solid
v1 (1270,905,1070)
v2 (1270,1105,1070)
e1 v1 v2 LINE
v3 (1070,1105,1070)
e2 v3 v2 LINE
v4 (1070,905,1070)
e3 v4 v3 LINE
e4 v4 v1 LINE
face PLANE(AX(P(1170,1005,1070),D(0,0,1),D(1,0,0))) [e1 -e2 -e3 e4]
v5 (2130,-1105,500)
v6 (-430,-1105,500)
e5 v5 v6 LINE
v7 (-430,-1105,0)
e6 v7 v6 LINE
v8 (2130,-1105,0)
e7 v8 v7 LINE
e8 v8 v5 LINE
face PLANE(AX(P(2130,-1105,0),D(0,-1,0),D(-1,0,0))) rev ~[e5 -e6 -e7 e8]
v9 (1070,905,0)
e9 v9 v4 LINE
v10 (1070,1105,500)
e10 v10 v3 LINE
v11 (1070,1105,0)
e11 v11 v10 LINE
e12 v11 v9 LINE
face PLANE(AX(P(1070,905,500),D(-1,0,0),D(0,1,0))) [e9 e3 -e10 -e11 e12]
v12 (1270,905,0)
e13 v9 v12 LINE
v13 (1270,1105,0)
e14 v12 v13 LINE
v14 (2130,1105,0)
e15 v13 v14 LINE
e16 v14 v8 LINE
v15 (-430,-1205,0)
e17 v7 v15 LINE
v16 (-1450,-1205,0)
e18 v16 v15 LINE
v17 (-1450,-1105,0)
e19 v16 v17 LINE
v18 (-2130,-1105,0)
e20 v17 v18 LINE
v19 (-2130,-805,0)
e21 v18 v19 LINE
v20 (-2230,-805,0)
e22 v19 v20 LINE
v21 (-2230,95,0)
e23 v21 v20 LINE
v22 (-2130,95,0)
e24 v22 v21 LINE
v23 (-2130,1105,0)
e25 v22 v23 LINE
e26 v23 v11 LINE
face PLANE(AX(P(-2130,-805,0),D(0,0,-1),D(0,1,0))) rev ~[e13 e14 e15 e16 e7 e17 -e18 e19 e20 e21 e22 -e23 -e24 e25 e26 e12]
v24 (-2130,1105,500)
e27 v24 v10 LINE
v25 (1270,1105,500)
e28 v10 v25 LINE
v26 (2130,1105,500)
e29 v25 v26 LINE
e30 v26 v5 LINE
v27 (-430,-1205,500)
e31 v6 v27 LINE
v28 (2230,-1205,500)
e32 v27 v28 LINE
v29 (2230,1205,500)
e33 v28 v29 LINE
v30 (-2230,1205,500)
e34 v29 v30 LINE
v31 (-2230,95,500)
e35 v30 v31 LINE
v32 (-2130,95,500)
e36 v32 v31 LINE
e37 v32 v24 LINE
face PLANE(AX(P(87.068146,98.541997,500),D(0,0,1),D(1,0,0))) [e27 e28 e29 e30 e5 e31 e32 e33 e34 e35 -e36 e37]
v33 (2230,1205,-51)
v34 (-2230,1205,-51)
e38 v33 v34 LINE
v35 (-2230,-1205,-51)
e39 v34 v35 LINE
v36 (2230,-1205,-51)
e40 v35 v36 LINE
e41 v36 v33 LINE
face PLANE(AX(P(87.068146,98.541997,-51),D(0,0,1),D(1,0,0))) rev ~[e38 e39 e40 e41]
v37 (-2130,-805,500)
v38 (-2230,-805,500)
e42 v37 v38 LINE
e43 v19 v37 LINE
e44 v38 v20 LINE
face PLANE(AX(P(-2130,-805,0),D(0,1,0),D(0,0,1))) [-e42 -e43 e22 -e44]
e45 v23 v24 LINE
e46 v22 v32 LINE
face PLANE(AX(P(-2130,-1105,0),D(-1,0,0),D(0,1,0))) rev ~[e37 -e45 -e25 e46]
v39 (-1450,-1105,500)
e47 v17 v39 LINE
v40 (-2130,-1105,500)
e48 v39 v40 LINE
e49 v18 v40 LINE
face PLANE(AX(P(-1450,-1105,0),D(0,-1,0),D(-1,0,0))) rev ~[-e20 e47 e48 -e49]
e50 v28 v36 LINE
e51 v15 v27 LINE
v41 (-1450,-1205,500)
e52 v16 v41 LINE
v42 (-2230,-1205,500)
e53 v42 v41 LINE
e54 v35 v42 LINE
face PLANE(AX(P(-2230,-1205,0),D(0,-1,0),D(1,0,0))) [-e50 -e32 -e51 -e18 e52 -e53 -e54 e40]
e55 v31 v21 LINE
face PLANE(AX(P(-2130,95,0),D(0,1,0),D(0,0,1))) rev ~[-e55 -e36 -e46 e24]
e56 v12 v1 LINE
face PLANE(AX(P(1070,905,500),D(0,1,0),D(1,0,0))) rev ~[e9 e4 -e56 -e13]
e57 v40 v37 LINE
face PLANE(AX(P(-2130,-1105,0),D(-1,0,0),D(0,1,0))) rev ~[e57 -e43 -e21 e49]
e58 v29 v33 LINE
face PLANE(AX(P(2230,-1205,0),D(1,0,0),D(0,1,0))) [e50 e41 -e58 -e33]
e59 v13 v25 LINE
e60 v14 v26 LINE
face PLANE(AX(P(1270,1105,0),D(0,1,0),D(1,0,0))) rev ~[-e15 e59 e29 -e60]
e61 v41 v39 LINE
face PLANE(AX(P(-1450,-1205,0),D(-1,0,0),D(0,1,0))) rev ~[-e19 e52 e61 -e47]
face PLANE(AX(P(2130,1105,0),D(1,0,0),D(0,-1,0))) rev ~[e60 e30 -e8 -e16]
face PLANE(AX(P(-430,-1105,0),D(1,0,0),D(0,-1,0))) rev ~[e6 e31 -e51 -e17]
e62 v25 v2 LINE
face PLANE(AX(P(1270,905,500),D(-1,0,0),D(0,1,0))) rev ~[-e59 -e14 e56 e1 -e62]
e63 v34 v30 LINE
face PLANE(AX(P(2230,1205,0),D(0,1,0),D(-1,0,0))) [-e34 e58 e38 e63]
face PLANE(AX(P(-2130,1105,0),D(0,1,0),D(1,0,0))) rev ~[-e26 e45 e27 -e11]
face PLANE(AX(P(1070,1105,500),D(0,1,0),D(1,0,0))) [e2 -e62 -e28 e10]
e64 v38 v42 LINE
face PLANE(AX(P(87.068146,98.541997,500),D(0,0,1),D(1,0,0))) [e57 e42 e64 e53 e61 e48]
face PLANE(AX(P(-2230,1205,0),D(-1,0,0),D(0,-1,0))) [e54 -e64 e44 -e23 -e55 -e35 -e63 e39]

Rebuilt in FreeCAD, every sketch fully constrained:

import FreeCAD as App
import Part
import Sketcher
Q = App.Units.Quantity


def add_polygon(sketch, points):
    """Adds a closed chain of lines whose ends are joined by coincident constraints."""
    first, n = sketch.GeometryCount, len(points)
    for a, b in zip(points, points[1:] + points[:1]):
        sketch.addGeometry(Part.LineSegment(App.Vector(*a, 0), App.Vector(*b, 0)), False)
    for i in range(n):
        sketch.addConstraint(Sketcher.Constraint("Coincident", first + i, 2, first + (i + 1) % n, 1))

doc = App.newDocument("Part")
body = doc.addObject("PartDesign::Body", "Body")

sketch1 = body.newObject("Sketcher::SketchObject", "Sketch")
sketch1.AttachmentSupport = (doc.getObject("XY_Plane"), [""])
sketch1.MapMode = "FlatFace"
add_polygon(sketch1, [(2230, 1205), (-2230, 1205), (-2230, -1205), (-1450, -1205), (-1450, -1105), (-2130, -1105), (-2130, 1105), (1070, 1105), (1070, 905), (1270, 905), (1270, 1105), (2130, 1105), (2130, -1105), (-430, -1105), (-430, -1205), (2230, -1205)])
sketch1.addConstraint(Sketcher.Constraint("Horizontal", 0))
sketch1.addConstraint(Sketcher.Constraint("Vertical", 1))
sketch1.addConstraint(Sketcher.Constraint("Horizontal", 2))
sketch1.addConstraint(Sketcher.Constraint("Vertical", 3))
sketch1.addConstraint(Sketcher.Constraint("Horizontal", 4))
sketch1.addConstraint(Sketcher.Constraint("Vertical", 5))
sketch1.addConstraint(Sketcher.Constraint("Horizontal", 6))
sketch1.addConstraint(Sketcher.Constraint("Vertical", 7))
sketch1.addConstraint(Sketcher.Constraint("Horizontal", 8))
sketch1.addConstraint(Sketcher.Constraint("Vertical", 9))
sketch1.addConstraint(Sketcher.Constraint("Horizontal", 10))
sketch1.addConstraint(Sketcher.Constraint("Vertical", 11))
sketch1.addConstraint(Sketcher.Constraint("Horizontal", 12))
sketch1.addConstraint(Sketcher.Constraint("Vertical", 13))
sketch1.addConstraint(Sketcher.Constraint("Horizontal", 14))
sketch1.addConstraint(Sketcher.Constraint("Vertical", 15))
sketch1.addConstraint(Sketcher.Constraint("Symmetric", 4, 2, 10, 2, -1, 1))
sketch1.addConstraint(Sketcher.Constraint("Symmetric", 0, 2, 14, 2, -1, 1))
sketch1.addConstraint(Sketcher.Constraint("Horizontal", 6, 2, 9, 2))
sketch1.addConstraint(Sketcher.Constraint("Horizontal", 4, 2, 11, 2))
sketch1.addConstraint(Sketcher.Constraint("Horizontal", 2, 2, 13, 2))
sketch1.addConstraint(Sketcher.Constraint("Equal", 8, 7))
sketch1.addConstraint(Sketcher.Constraint("DistanceX", 0, 2, 0, 1, Q("4460 mm")))
sketch1.addConstraint(Sketcher.Constraint("DistanceX", 2, 1, 2, 2, Q("780 mm")))
sketch1.addConstraint(Sketcher.Constraint("DistanceX", 4, 2, 4, 1, Q("680 mm")))
sketch1.addConstraint(Sketcher.Constraint("DistanceX", 6, 1, 6, 2, Q("3200 mm")))
sketch1.addConstraint(Sketcher.Constraint("DistanceX", 8, 1, 8, 2, Q("200 mm")))
sketch1.addConstraint(Sketcher.Constraint("DistanceX", 12, 2, 12, 1, Q("2560 mm")))
sketch1.addConstraint(Sketcher.Constraint("DistanceY", 1, 2, 1, 1, Q("2410 mm")))
sketch1.addConstraint(Sketcher.Constraint("DistanceY", 3, 1, 3, 2, Q("100 mm")))
pad1 = body.newObject("PartDesign::Pad", "Pad")
pad1.Profile = sketch1
pad1.Length = 500

sketch2 = body.newObject("Sketcher::SketchObject", "Sketch001")
sketch2.AttachmentSupport = (doc.getObject("XY_Plane"), [""])
sketch2.MapMode = "FlatFace"
add_polygon(sketch2, [(2230, 1205), (-2230, 1205), (-2230, -1205), (2230, -1205)])
sketch2.addConstraint(Sketcher.Constraint("Horizontal", 0))
sketch2.addConstraint(Sketcher.Constraint("Vertical", 1))
sketch2.addConstraint(Sketcher.Constraint("Horizontal", 2))
sketch2.addConstraint(Sketcher.Constraint("Vertical", 3))
sketch2.addConstraint(Sketcher.Constraint("Symmetric", 0, 2, 2, 2, -1, 1))
sketch2.addConstraint(Sketcher.Constraint("DistanceX", 0, 2, 0, 1, Q("4460 mm")))
sketch2.addConstraint(Sketcher.Constraint("DistanceY", 1, 2, 1, 1, Q("2410 mm")))
pad2 = body.newObject("PartDesign::Pad", "Pad001")
pad2.Profile = sketch2
pad2.Length = 51
pad2.Reversed = True

sketch3 = body.newObject("Sketcher::SketchObject", "Sketch002")
sketch3.AttachmentSupport = (doc.getObject("YZ_Plane"), [""])
sketch3.MapMode = "FlatFace"
sketch3.AttachmentOffset = App.Placement(App.Vector(0, 0, -2130), App.Rotation())
add_polygon(sketch3, [(-805, 500), (-805, 0), (95, 0), (95, 500)])
sketch3.addConstraint(Sketcher.Constraint("Vertical", 0))
sketch3.addConstraint(Sketcher.Constraint("Horizontal", 1))
sketch3.addConstraint(Sketcher.Constraint("Vertical", 2))
sketch3.addConstraint(Sketcher.Constraint("Horizontal", 3))
sketch3.addConstraint(Sketcher.Constraint("PointOnObject", 0, 2, -1))
sketch3.addConstraint(Sketcher.Constraint("DistanceX", 1, 1, 1, 2, Q("900 mm")))
sketch3.addConstraint(Sketcher.Constraint("DistanceY", 0, 2, 0, 1, Q("500 mm")))
sketch3.addConstraint(Sketcher.Constraint("DistanceX", 0, 2, -1, 1, Q("805 mm")))
pocket1 = body.newObject("PartDesign::Pocket", "Pocket")
pocket1.Profile = sketch3
pocket1.Length = 190

sketch4 = body.newObject("Sketcher::SketchObject", "Sketch003")
sketch4.AttachmentSupport = (doc.getObject("XY_Plane"), [""])
sketch4.MapMode = "FlatFace"
sketch4.AttachmentOffset = App.Placement(App.Vector(0, 0, 500), App.Rotation())
add_polygon(sketch4, [(1070, 1105), (1070, 905), (1270, 905), (1270, 1105)])
sketch4.addConstraint(Sketcher.Constraint("Vertical", 0))
sketch4.addConstraint(Sketcher.Constraint("Horizontal", 1))
sketch4.addConstraint(Sketcher.Constraint("Vertical", 2))
sketch4.addConstraint(Sketcher.Constraint("Horizontal", 3))
sketch4.addConstraint(Sketcher.Constraint("Equal", 3, 0))
sketch4.addConstraint(Sketcher.Constraint("DistanceX", 1, 1, 1, 2, Q("200 mm")))
sketch4.addConstraint(Sketcher.Constraint("DistanceX", -1, 1, 0, 2, Q("1070 mm")))
sketch4.addConstraint(Sketcher.Constraint("DistanceY", -1, 1, 0, 2, Q("905 mm")))
pad3 = body.newObject("PartDesign::Pad", "Pad002")
pad3.Profile = sketch4
pad3.Length = 570

doc.recompute()
